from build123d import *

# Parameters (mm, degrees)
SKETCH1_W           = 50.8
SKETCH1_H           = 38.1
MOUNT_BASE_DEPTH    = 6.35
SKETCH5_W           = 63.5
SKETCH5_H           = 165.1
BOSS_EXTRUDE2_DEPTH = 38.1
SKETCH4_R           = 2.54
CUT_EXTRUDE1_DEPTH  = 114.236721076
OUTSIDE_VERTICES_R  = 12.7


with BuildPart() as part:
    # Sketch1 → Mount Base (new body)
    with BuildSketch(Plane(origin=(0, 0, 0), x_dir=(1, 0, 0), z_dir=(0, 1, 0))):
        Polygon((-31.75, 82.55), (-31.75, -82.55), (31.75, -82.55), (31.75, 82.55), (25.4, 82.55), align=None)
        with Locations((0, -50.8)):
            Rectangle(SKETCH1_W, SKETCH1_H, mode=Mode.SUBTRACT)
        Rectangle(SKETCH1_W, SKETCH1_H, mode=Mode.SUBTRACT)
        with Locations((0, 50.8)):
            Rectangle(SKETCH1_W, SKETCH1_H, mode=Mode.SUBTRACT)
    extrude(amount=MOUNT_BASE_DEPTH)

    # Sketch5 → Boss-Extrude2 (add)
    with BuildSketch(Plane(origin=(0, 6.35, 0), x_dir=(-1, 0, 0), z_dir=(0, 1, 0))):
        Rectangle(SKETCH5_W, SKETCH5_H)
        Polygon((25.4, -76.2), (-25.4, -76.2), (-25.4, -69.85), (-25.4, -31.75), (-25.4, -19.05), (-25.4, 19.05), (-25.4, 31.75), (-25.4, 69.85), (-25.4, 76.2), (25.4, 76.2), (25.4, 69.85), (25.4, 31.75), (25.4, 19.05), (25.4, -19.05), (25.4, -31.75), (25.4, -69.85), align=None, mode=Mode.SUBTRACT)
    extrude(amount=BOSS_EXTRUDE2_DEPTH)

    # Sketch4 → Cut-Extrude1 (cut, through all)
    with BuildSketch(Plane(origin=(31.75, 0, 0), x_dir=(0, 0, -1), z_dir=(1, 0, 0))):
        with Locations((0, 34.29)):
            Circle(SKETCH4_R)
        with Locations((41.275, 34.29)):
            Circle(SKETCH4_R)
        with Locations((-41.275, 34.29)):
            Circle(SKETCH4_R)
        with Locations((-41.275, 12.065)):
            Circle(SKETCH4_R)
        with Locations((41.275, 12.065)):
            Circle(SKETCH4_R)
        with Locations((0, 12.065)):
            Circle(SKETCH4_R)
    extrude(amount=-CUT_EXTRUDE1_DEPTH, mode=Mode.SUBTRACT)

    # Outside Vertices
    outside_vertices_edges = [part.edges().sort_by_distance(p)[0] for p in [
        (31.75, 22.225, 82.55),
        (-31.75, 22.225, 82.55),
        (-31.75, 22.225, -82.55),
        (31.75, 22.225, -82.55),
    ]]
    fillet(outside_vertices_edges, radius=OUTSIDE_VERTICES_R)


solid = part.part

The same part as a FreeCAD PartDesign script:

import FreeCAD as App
import Part
import Sketcher
from FreeCAD import Vector
Q = App.Units.Quantity


def edges_at(feature, points):
    """Names of the edges that pass closest to the given points."""
    edges = feature.Shape.Edges
    near = lambda p: min(range(len(edges)), key=lambda i: edges[i].distToShape(Part.Vertex(*p))[0])
    return sorted({f"Edge{near(p) + 1}" for p in points})


def add_polygon(sketch, points):
    """Adds a closed chain of lines whose ends are joined by coincident constraints."""
    first, n = sketch.GeometryCount, len(points)
    for a, b in zip(points, points[1:] + points[:1]):
        sketch.addGeometry(Part.LineSegment(App.Vector(*a, 0), App.Vector(*b, 0)), False)
    for i in range(n):
        sketch.addConstraint(Sketcher.Constraint("Coincident", first + i, 2, first + (i + 1) % n, 1))

doc = App.newDocument("Part")
params = doc.addObject("Spreadsheet::Sheet", "Params")
for row, (alias, value) in enumerate([
    ("sketch1_width", "2 in"),
    ("sketch1_width2", "2.5 in"),
    ("sketch1_height", "6.5 in"),
    ("sketch1_height2", "1.5 in"),
    ("pad1_length", "0.25 in"),
    ("sketch2_width", "2 in"),
    ("sketch2_height", "6 in"),
    ("sketch2_width2", "2.5 in"),
    ("sketch2_height2", "6.5 in"),
    ("pad2_length", "1.5 in"),
    ("sketch3_diameter", "0.2 in"),
    ("fillet_radius", "0.5 in"),
], start=1):
    params.set(f"A{row}", alias)
    params.set(f"B{row}", "=" + value)
    params.setAlias(f"B{row}", alias)

body = doc.addObject("PartDesign::Body", "Body")

# Sketch on XZ plane
sketch1 = body.newObject("Sketcher::SketchObject", "Sketch")
sketch1.AttachmentSupport = (doc.getObject("XZ_Plane"), [""])
sketch1.MapMode = "FlatFace"
add_polygon(sketch1, [(-31.75, -82.55), (-31.75, 82.55), (31.75, 82.55), (31.75, -82.55)])  # lines 0-3
add_polygon(sketch1, [(25.4, 69.85), (-25.4, 69.85), (-25.4, 31.75), (25.4, 31.75)])  # lines 4-7
add_polygon(sketch1, [(25.4, 19.05), (-25.4, 19.05), (-25.4, -19.05), (25.4, -19.05)])  # lines 8-11
add_polygon(sketch1, [(25.4, -31.75), (-25.4, -31.75), (-25.4, -69.85), (25.4, -69.85)])  # lines 12-15
sketch1.addConstraint([
    Sketcher.Constraint("Vertical", 0),
    Sketcher.Constraint("Horizontal", 1),
    Sketcher.Constraint("Vertical", 2),
    Sketcher.Constraint("Horizontal", 3),
    Sketcher.Constraint("Horizontal", 4),
    Sketcher.Constraint("Vertical", 5),
    Sketcher.Constraint("Horizontal", 6),
    Sketcher.Constraint("Vertical", 7),
    Sketcher.Constraint("Horizontal", 8),
    Sketcher.Constraint("Vertical", 9),
    Sketcher.Constraint("Horizontal", 10),
    Sketcher.Constraint("Vertical", 11),
    Sketcher.Constraint("Horizontal", 12),
    Sketcher.Constraint("Vertical", 13),
    Sketcher.Constraint("Horizontal", 14),
    Sketcher.Constraint("Vertical", 15),
    Sketcher.Constraint("Symmetric", 0, 2, 2, 2, -1, 1),
    Sketcher.Constraint("Symmetric", 8, 2, 10, 2, -1, 1),
    Sketcher.Constraint("Symmetric", 6, 2, 12, 2, -1, 1),
    Sketcher.Constraint("Symmetric", 4, 2, 14, 2, -1, 1),
    Sketcher.Constraint("Vertical", 5, 2, 8, 2),
    Sketcher.Constraint("Vertical", 7, 2, 10, 2),
    Sketcher.Constraint("Equal", 7, 9),
    Sketcher.Constraint("DistanceX", 4, 2, 4, 1, Q("2 in")),
    Sketcher.Constraint("DistanceX", 1, 1, 1, 2, Q("2.5 in")),
    Sketcher.Constraint("DistanceY", 0, 1, 0, 2, Q("6.5 in")),
    Sketcher.Constraint("DistanceY", 5, 2, 5, 1, Q("1.5 in")),
    Sketcher.Constraint("DistanceY", 3, 2, 4, 2, Q("6 in")),
])
sketch1.setExpression("Constraints[39]", "Params.sketch1_width")
sketch1.setExpression("Constraints[40]", "Params.sketch1_width2")
sketch1.setExpression("Constraints[41]", "Params.sketch1_height")
sketch1.setExpression("Constraints[42]", "Params.sketch1_height2")
pad1 = body.newObject("PartDesign::Pad", "Pad")
pad1.Profile = sketch1
pad1.setExpression("Length", "Params.pad1_length")
pad1.Reversed = True

# Sketch on XZ plane
sketch2 = body.newObject("Sketcher::SketchObject", "Sketch001")
sketch2.AttachmentSupport = (doc.getObject("XZ_Plane"), [""])
sketch2.MapMode = "FlatFace"
sketch2.AttachmentOffset = App.Placement(Vector(0, 0, -0.25 * 25.4), App.Rotation())
add_polygon(sketch2, [(31.75, 82.55), (31.75, -82.55), (-31.75, -82.55), (-31.75, 82.55)])  # lines 0-3
add_polygon(sketch2, [(-25.4, 76.2), (-25.4, -76.2), (25.4, -76.2), (25.4, 76.2)])  # lines 4-7
sketch2.addConstraint([
    Sketcher.Constraint("Vertical", 0),
    Sketcher.Constraint("Horizontal", 1),
    Sketcher.Constraint("Vertical", 2),
    Sketcher.Constraint("Horizontal", 3),
    Sketcher.Constraint("Vertical", 4),
    Sketcher.Constraint("Horizontal", 5),
    Sketcher.Constraint("Vertical", 6),
    Sketcher.Constraint("Horizontal", 7),
    Sketcher.Constraint("Symmetric", 0, 2, 2, 2, -1, 1),
    Sketcher.Constraint("Symmetric", 4, 2, 6, 2, -1, 1),
    Sketcher.Constraint("DistanceX", 5, 1, 5, 2, Q("2 in")),
    Sketcher.Constraint("DistanceY", 4, 2, 4, 1, Q("6 in")),
    Sketcher.Constraint("DistanceX", 1, 2, 1, 1, Q("2.5 in")),
    Sketcher.Constraint("DistanceY", 0, 2, 0, 1, Q("6.5 in")),
])
sketch2.setExpression("Constraints[18]", "Params.sketch2_width")
sketch2.setExpression("Constraints[19]", "Params.sketch2_height")
sketch2.setExpression("Constraints[20]", "Params.sketch2_width2")
sketch2.setExpression("Constraints[21]", "Params.sketch2_height2")
pad2 = body.newObject("PartDesign::Pad", "Pad001")
pad2.Profile = sketch2
pad2.setExpression("Length", "Params.pad2_length")
pad2.Reversed = True

# Sketch on YZ plane
sketch3 = body.newObject("Sketcher::SketchObject", "Sketch002")
sketch3.AttachmentSupport = (doc.getObject("YZ_Plane"), [""])
sketch3.MapMode = "FlatFace"
sketch3.AttachmentOffset = App.Placement(Vector(0, 0, 1.25 * 25.4), App.Rotation())
sketch3.addGeometry([
    Part.Circle(Vector(34.29, 0, 0), Vector(0, 0, 1), 2.54),  # 0
    Part.Circle(Vector(34.29, -41.275, 0), Vector(0, 0, 1), 2.54),  # 1
    Part.Circle(Vector(34.29, 41.275, 0), Vector(0, 0, 1), 2.54),  # 2
    Part.Circle(Vector(12.065, 41.275, 0), Vector(0, 0, 1), 2.54),  # 3
    Part.Circle(Vector(12.065, -41.275, 0), Vector(0, 0, 1), 2.54),  # 4
    Part.Circle(Vector(12.065, 0, 0), Vector(0, 0, 1), 2.54),  # 5
], False)
sketch3.addConstraint([
    Sketcher.Constraint("Equal", 0, 1),
    Sketcher.Constraint("Equal", 1, 2),
    Sketcher.Constraint("Equal", 2, 3),
    Sketcher.Constraint("Equal", 3, 4),
    Sketcher.Constraint("Equal", 4, 5),
    Sketcher.Constraint("Symmetric", 1, 3, 2, 3, -1),
    Sketcher.Constraint("Symmetric", 3, 3, 4, 3, -1),
    Sketcher.Constraint("PointOnObject", 0, 3, -1),
    Sketcher.Constraint("PointOnObject", 5, 3, -1),
    Sketcher.Constraint("Horizontal", 2, 3, 3, 3),
    Sketcher.Constraint("Vertical", 0, 3, 1, 3),
    Sketcher.Constraint("Vertical", 4, 3, 5, 3),
    Sketcher.Constraint("Diameter", 0, Q("0.2 in")),
    Sketcher.Constraint("DistanceX", -1, 1, 0, 3, Q("1.35 in")),
    Sketcher.Constraint("DistanceY", 1, 3, 2, 3, Q("3.25 in")),
    Sketcher.Constraint("DistanceX", -1, 1, 3, 3, Q("0.475 in")),
])
sketch3.setExpression("Constraints[12]", "Params.sketch3_diameter")
pocket1 = body.newObject("PartDesign::Pocket", "Pocket")
pocket1.Profile = sketch3
pocket1.Type = "ThroughAll"
doc.recompute()

fillet = body.newObject("PartDesign::Fillet", "Fillet")
fillet.Base = (pocket1, edges_at(pocket1, [
    (31.75, 22.225, 82.55),
    (-31.75, 22.225, 82.55),
    (-31.75, 22.225, -82.55),
    (31.75, 22.225, -82.55),
]))
fillet.setExpression("Radius", "Params.fillet_radius")

doc.recompute()
